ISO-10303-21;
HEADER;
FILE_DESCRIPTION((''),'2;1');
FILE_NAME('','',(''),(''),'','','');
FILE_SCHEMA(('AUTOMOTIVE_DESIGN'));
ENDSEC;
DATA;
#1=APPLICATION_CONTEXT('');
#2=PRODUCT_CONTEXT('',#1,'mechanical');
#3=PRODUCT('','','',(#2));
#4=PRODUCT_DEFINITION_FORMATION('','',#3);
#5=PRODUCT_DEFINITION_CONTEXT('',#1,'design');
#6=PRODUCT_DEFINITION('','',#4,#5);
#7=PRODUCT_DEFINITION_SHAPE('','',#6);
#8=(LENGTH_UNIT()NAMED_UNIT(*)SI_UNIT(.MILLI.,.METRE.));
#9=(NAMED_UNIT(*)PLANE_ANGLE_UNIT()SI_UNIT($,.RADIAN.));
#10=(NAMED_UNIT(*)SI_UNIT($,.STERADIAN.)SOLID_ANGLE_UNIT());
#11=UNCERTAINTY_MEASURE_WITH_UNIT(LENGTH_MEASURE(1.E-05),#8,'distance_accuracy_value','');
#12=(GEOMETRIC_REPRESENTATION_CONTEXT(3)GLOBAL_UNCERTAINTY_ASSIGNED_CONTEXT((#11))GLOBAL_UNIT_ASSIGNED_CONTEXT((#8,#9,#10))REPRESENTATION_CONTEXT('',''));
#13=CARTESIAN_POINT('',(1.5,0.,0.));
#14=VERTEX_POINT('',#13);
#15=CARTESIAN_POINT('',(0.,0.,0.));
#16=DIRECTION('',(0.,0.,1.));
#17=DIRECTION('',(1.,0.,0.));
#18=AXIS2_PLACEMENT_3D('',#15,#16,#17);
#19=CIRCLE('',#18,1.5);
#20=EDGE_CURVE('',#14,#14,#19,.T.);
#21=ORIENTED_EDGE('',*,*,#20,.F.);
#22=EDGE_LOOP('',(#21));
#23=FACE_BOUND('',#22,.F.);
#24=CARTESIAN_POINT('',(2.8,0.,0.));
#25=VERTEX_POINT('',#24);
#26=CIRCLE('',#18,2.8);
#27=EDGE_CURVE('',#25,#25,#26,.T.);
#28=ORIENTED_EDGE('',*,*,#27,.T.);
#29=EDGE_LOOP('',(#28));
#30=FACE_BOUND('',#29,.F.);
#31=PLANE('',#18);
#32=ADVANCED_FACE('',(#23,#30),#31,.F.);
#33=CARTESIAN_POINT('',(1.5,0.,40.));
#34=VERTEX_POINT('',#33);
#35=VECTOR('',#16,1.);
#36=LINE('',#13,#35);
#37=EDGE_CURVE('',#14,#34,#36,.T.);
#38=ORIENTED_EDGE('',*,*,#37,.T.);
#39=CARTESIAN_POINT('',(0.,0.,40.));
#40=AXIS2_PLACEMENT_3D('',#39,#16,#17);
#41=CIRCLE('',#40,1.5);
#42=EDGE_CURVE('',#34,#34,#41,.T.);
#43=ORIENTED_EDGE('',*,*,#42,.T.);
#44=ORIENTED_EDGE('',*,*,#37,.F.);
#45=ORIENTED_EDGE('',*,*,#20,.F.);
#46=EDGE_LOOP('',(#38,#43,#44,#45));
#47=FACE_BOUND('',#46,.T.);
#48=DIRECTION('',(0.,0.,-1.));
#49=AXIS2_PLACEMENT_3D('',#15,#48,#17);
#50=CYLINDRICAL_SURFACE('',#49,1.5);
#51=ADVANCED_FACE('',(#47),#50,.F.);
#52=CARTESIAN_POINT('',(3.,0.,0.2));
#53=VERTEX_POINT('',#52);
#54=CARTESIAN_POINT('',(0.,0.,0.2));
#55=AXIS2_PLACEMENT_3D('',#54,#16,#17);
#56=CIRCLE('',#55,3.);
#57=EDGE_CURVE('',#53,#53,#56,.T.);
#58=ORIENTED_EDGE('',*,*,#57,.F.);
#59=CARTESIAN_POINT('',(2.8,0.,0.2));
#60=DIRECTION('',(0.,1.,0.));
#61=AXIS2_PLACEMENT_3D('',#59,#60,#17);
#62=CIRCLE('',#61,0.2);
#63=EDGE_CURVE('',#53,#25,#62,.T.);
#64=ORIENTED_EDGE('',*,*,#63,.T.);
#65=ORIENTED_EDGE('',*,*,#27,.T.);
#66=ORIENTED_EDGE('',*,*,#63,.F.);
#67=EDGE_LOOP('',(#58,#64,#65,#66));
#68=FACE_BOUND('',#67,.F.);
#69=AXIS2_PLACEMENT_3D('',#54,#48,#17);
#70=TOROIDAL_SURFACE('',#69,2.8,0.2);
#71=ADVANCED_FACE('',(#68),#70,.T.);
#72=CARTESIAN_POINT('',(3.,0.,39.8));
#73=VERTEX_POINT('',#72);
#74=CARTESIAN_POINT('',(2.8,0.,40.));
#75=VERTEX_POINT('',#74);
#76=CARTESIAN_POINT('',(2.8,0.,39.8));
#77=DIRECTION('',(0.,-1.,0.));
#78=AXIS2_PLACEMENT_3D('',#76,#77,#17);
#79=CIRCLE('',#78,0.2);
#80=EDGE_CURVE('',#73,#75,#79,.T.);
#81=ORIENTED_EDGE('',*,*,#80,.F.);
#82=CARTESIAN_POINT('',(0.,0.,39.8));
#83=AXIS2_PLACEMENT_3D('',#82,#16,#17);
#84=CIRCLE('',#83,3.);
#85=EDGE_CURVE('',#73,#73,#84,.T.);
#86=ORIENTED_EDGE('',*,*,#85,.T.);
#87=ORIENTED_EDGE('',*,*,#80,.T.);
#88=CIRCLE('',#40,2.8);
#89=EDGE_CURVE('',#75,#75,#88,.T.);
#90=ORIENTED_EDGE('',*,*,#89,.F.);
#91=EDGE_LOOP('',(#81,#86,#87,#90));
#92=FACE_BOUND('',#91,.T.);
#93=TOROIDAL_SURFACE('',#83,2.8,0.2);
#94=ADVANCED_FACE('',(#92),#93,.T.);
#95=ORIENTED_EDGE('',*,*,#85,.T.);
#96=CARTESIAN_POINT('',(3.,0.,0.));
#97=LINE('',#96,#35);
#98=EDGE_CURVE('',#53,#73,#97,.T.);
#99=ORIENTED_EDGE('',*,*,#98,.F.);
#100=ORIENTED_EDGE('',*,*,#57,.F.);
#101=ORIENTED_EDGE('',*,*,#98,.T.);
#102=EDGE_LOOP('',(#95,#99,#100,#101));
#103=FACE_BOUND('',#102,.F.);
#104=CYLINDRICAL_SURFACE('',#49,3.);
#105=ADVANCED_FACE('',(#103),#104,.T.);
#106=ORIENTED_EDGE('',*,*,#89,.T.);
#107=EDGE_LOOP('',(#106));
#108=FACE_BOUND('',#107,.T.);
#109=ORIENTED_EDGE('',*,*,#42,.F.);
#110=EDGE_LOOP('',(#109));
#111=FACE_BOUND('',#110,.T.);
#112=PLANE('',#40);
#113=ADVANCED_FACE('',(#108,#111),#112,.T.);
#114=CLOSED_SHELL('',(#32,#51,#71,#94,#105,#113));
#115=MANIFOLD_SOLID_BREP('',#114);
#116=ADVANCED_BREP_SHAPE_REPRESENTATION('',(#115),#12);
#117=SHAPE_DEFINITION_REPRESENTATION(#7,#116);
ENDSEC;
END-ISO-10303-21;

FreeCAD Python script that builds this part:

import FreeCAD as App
import Part
import Sketcher


def edges_at(feature, points):
    """Names of the edges that pass closest to the given points."""
    edges = feature.Shape.Edges
    near = lambda p: min(range(len(edges)), key=lambda i: edges[i].distToShape(Part.Vertex(*p))[0])
    return sorted({f"Edge{near(p) + 1}" for p in points})

doc = App.newDocument("Part")
body = doc.addObject("PartDesign::Body", "Body")

# Sketch on XY plane
sketch1 = body.newObject("Sketcher::SketchObject", "Sketch")
sketch1.AttachmentSupport = (doc.getObject("XY_Plane"), [""])
sketch1.MapMode = "FlatFace"
sketch1.addGeometry(Part.Circle(App.Vector(0, 0, 0), App.Vector(0, 0, 1), 3), False)
sketch1.addGeometry(Part.Circle(App.Vector(0, 0, 0), App.Vector(0, 0, 1), 1.5), False)
sketch1.addConstraint(Sketcher.Constraint("Coincident", 0, 3, -1, 1))
sketch1.addConstraint(Sketcher.Constraint("Coincident", 1, 3, -1, 1))
sketch1.addConstraint(Sketcher.Constraint("Diameter", 0, 6.0))
sketch1.addConstraint(Sketcher.Constraint("Diameter", 1, 3.0))
pad1 = body.newObject("PartDesign::Pad", "Pad")
pad1.Profile = sketch1
pad1.Length = 40
doc.recompute()

fillet = body.newObject("PartDesign::Fillet", "Fillet")
fillet.Base = (pad1, edges_at(pad1, [(-3, 0, 0), (-3, 0, 40)]))
fillet.Radius = 0.2

doc.recompute()
